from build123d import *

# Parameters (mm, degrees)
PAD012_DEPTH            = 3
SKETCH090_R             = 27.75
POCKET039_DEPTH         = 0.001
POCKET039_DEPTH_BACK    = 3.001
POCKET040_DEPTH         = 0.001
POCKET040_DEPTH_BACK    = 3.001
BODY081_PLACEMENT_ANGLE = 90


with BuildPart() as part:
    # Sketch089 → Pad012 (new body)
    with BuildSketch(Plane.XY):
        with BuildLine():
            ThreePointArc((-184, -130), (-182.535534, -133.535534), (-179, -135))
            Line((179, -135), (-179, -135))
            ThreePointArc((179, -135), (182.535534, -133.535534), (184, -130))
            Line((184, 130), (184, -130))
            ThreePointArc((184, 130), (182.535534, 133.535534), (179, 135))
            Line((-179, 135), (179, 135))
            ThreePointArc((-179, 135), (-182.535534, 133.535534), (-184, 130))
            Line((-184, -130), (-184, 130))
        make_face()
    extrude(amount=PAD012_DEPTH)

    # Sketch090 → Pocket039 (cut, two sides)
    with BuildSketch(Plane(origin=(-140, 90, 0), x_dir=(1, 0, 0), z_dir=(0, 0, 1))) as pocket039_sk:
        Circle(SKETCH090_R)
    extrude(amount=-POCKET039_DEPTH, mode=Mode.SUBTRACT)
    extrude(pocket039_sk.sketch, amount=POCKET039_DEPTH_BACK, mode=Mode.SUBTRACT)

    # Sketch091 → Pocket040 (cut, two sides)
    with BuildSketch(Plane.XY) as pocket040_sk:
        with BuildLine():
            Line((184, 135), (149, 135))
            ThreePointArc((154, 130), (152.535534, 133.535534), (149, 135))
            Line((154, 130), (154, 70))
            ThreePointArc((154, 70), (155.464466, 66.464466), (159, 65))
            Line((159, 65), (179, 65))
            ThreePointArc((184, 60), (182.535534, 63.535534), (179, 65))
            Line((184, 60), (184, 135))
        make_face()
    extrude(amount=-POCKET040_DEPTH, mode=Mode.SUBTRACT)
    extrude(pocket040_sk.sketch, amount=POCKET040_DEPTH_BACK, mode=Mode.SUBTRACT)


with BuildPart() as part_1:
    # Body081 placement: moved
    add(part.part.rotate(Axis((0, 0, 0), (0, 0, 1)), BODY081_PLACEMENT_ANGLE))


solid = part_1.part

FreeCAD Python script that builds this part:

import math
import FreeCAD as App
import Part
import Sketcher

V = App.Vector

doc = App.newDocument("Part")
body = doc.addObject("PartDesign::Body", "Body")

# Sketch on XY plane
sketch1 = doc.addObject("Sketcher::SketchObject", "Sketch")
body.addObject(sketch1)
sketch1.AttachmentSupport = (doc.XY_Plane, [""])
sketch1.MapMode = "FlatFace"
sketch1.addGeometry([
    Part.ArcOfCircle(Part.Circle(V(-179, -130, 0), V(0, 0, 1), 5), math.radians(180), math.radians(270)),  # 0
    Part.LineSegment(V(-179, -135, 0), V(179, -135, 0)),  # 1
    Part.ArcOfCircle(Part.Circle(V(179, -130, 0), V(0, 0, 1), 5), math.radians(-90), math.radians(0)),  # 2
    Part.LineSegment(V(184, -130, 0), V(184, 130, 0)),  # 3
    Part.ArcOfCircle(Part.Circle(V(179, 130, 0), V(0, 0, 1), 5), math.radians(0), math.radians(90)),  # 4
    Part.LineSegment(V(179, 135, 0), V(-179, 135, 0)),  # 5
    Part.ArcOfCircle(Part.Circle(V(-179, 130, 0), V(0, 0, 1), 5), math.radians(90), math.radians(180)),  # 6
    Part.LineSegment(V(-184, 130, 0), V(-184, -130, 0)),  # 7
], False)
sketch1.addConstraint([
    Sketcher.Constraint("Tangent", 0, 2, 1, 1),
    Sketcher.Constraint("Tangent", 1, 2, 2, 1),
    Sketcher.Constraint("Tangent", 2, 2, 3, 1),
    Sketcher.Constraint("Tangent", 3, 2, 4, 1),
    Sketcher.Constraint("Tangent", 4, 2, 5, 1),
    Sketcher.Constraint("Tangent", 5, 2, 6, 1),
    Sketcher.Constraint("Tangent", 6, 2, 7, 1),
    Sketcher.Constraint("Tangent", 7, 2, 0, 1),
    Sketcher.Constraint("Horizontal", 1),
    Sketcher.Constraint("Vertical", 3),
    Sketcher.Constraint("Horizontal", 5),
    Sketcher.Constraint("Vertical", 7),
    Sketcher.Constraint("Equal", 0, 2),
    Sketcher.Constraint("Equal", 2, 4),
    Sketcher.Constraint("Equal", 4, 6),
    Sketcher.Constraint("Symmetric", 0, 3, 4, 3, -1, 1),
    Sketcher.Constraint("Radius", 0, 5.0),
    Sketcher.Constraint("DistanceX", 1, 1, 1, 2, 358.0),
    Sketcher.Constraint("DistanceY", 3, 1, 3, 2, 260.0),
])
pad1 = doc.addObject("PartDesign::Pad", "Pad")
body.addObject(pad1)
pad1.Profile = sketch1
pad1.Length = 3

# Sketch on XY plane
sketch2 = doc.addObject("Sketcher::SketchObject", "Sketch001")
body.addObject(sketch2)
sketch2.AttachmentSupport = (doc.XY_Plane, [""])
sketch2.MapMode = "FlatFace"
sketch2.addGeometry(Part.Circle(V(-140, 90, 0), V(0, 0, 1), 28), False)
sketch2.addConstraint([
    Sketcher.Constraint("Diameter", 0, 55.5),
    Sketcher.Constraint("DistanceX", 0, 3, -1, 1, 140.0),
    Sketcher.Constraint("DistanceY", -1, 1, 0, 3, 90.0),
])
pocket1 = doc.addObject("PartDesign::Pocket", "Pocket")
body.addObject(pocket1)
pocket1.Profile = sketch2
pocket1.Type = "ThroughAll"
pocket1.Midplane = True

# Sketch on XY plane
sketch3 = doc.addObject("Sketcher::SketchObject", "Sketch002")
body.addObject(sketch3)
sketch3.AttachmentSupport = (doc.XY_Plane, [""])
sketch3.MapMode = "FlatFace"
sketch3.addGeometry([
    Part.LineSegment(V(184, 135, 0), V(149, 135, 0)),  # 0
    Part.ArcOfCircle(Part.Circle(V(149, 130, 0), V(0, 0, 1), 5), math.radians(0), math.radians(90)),  # 1
    Part.LineSegment(V(154, 130, 0), V(154, 70, 0)),  # 2
    Part.ArcOfCircle(Part.Circle(V(159, 70, 0), V(0, 0, 1), 5), math.radians(180), math.radians(270)),  # 3
    Part.LineSegment(V(159, 65, 0), V(179, 65, 0)),  # 4
    Part.ArcOfCircle(Part.Circle(V(179, 60, 0), V(0, 0, 1), 5), math.radians(0), math.radians(90)),  # 5
    Part.LineSegment(V(184, 60, 0), V(184, 135, 0)),  # 6
], False)
sketch3.addConstraint([
    Sketcher.Constraint("Tangent", 0, 2, 1, 2),
    Sketcher.Constraint("Tangent", 1, 1, 2, 1),
    Sketcher.Constraint("Tangent", 2, 2, 3, 1),
    Sketcher.Constraint("Tangent", 3, 2, 4, 1),
    Sketcher.Constraint("Tangent", 4, 2, 5, 2),
    Sketcher.Constraint("Tangent", 5, 1, 6, 1),
    Sketcher.Constraint("Coincident", 6, 2, 0, 1),
    Sketcher.Constraint("Horizontal", 0),
    Sketcher.Constraint("Vertical", 2),
    Sketcher.Constraint("Horizontal", 4),
    Sketcher.Constraint("Vertical", 6),
    Sketcher.Constraint("Equal", 1, 3),
    Sketcher.Constraint("Equal", 3, 5),
    Sketcher.Constraint("Radius", 1, 5.0),
    Sketcher.Constraint("DistanceX", 0, 2, 0, 1, 35.0),
    Sketcher.Constraint("DistanceY", 2, 2, 2, 1, 60.0),
    Sketcher.Constraint("DistanceX", -1, 1, 1, 3, 149.0),
    Sketcher.Constraint("DistanceY", -1, 1, 1, 3, 130.0),
])
pocket2 = doc.addObject("PartDesign::Pocket", "Pocket001")
body.addObject(pocket2)
pocket2.Profile = sketch3
pocket2.Type = "ThroughAll"
pocket2.Midplane = True
body2 = doc.addObject("PartDesign::Body", "Body001")
doc.recompute()

body.Placement = App.Placement(V(0, 0, 0), App.Rotation(V(0, 0, 1), 90))
boolean = doc.addObject("PartDesign::Boolean", "Boolean")
body2.addObject(boolean)
boolean.Type = "Fuse"
boolean.addObjects([body])

doc.recompute()
